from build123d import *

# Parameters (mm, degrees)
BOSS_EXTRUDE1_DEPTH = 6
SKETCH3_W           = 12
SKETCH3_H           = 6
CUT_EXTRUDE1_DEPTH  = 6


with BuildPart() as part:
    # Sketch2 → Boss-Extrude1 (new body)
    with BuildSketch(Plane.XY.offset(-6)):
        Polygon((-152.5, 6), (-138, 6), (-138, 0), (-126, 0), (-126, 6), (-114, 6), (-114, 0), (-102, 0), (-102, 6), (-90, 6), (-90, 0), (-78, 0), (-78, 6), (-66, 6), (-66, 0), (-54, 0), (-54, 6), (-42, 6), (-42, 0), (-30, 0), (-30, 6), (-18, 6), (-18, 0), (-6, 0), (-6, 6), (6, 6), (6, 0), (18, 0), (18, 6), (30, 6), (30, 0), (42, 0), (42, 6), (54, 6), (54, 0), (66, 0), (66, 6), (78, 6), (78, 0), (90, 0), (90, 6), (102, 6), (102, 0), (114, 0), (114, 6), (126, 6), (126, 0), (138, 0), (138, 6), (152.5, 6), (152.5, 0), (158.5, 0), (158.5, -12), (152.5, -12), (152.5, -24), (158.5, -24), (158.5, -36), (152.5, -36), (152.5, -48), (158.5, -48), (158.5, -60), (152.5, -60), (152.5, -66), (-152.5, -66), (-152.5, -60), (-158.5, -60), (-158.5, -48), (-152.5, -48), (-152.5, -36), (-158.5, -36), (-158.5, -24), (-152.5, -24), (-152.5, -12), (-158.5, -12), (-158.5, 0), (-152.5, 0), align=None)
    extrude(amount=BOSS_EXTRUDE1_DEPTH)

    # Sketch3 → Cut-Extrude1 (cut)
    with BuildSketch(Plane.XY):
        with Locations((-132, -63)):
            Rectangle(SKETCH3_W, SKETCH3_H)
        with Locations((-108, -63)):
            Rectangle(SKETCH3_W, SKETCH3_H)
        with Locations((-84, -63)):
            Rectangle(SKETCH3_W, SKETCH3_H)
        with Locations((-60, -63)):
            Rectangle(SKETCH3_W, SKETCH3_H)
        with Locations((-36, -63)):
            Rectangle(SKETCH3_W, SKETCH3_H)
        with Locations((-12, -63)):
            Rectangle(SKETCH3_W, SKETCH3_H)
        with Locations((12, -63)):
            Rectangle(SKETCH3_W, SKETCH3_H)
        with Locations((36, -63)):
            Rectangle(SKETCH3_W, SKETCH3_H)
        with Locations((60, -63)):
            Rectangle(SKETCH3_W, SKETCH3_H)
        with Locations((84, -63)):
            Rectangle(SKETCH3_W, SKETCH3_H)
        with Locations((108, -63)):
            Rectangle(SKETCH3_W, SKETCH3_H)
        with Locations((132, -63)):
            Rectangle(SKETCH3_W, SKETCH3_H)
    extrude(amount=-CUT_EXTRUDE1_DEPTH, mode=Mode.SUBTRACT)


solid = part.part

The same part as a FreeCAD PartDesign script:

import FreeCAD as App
import Part
import Sketcher
from FreeCAD import Vector

doc = App.newDocument("Part")
body = doc.addObject("PartDesign::Body", "Body")

sketch1 = doc.addObject("Sketcher::SketchObject", "Sketch")
body.addObject(sketch1)
sketch1.AttachmentSupport = (doc.XY_Plane, [""])
sketch1.MapMode = "FlatFace"
sketch1.AttachmentOffset = App.Placement(Vector(0, 0, -6), App.Rotation())
sketch1.addGeometry([
    Part.LineSegment(Vector(-138, 6, 0), Vector(-152, 6, 0)),
    Part.LineSegment(Vector(-152, 6, 0), Vector(-152, 0, 0)),
    Part.LineSegment(Vector(-152, 0, 0), Vector(-158, 0, 0)),
    Part.LineSegment(Vector(-158, 0, 0), Vector(-158, -12, 0)),
    Part.LineSegment(Vector(-158, -12, 0), Vector(-152, -12, 0)),
    Part.LineSegment(Vector(-152, -12, 0), Vector(-152, -24, 0)),
    Part.LineSegment(Vector(-152, -24, 0), Vector(-158, -24, 0)),
    Part.LineSegment(Vector(-158, -24, 0), Vector(-158, -36, 0)),
    Part.LineSegment(Vector(-158, -36, 0), Vector(-152, -36, 0)),
    Part.LineSegment(Vector(-152, -36, 0), Vector(-152, -48, 0)),
    Part.LineSegment(Vector(-152, -48, 0), Vector(-158, -48, 0)),
    Part.LineSegment(Vector(-158, -48, 0), Vector(-158, -60, 0)),
    Part.LineSegment(Vector(-158, -60, 0), Vector(-152, -60, 0)),
    Part.LineSegment(Vector(-152, -60, 0), Vector(-152, -66, 0)),
    Part.LineSegment(Vector(-152, -66, 0), Vector(152, -66, 0)),
    Part.LineSegment(Vector(152, -66, 0), Vector(152, -60, 0)),
    Part.LineSegment(Vector(152, -60, 0), Vector(158, -60, 0)),
    Part.LineSegment(Vector(158, -60, 0), Vector(158, -48, 0)),
    Part.LineSegment(Vector(158, -48, 0), Vector(152, -48, 0)),
    Part.LineSegment(Vector(152, -48, 0), Vector(152, -36, 0)),
    Part.LineSegment(Vector(152, -36, 0), Vector(158, -36, 0)),
    Part.LineSegment(Vector(158, -36, 0), Vector(158, -24, 0)),
    Part.LineSegment(Vector(158, -24, 0), Vector(152, -24, 0)),
    Part.LineSegment(Vector(152, -24, 0), Vector(152, -12, 0)),
    Part.LineSegment(Vector(152, -12, 0), Vector(158, -12, 0)),
    Part.LineSegment(Vector(158, -12, 0), Vector(158, 0, 0)),
    Part.LineSegment(Vector(158, 0, 0), Vector(152, 0, 0)),
    Part.LineSegment(Vector(152, 0, 0), Vector(152, 6, 0)),
    Part.LineSegment(Vector(152, 6, 0), Vector(138, 6, 0)),
    Part.LineSegment(Vector(138, 6, 0), Vector(138, 0, 0)),
    Part.LineSegment(Vector(138, 0, 0), Vector(126, 0, 0)),
    Part.LineSegment(Vector(126, 0, 0), Vector(126, 6, 0)),
    Part.LineSegment(Vector(126, 6, 0), Vector(114, 6, 0)),
    Part.LineSegment(Vector(114, 6, 0), Vector(114, 0, 0)),
    Part.LineSegment(Vector(114, 0, 0), Vector(102, 0, 0)),
    Part.LineSegment(Vector(102, 0, 0), Vector(102, 6, 0)),
    Part.LineSegment(Vector(102, 6, 0), Vector(90, 6, 0)),
    Part.LineSegment(Vector(90, 6, 0), Vector(90, 0, 0)),
    Part.LineSegment(Vector(90, 0, 0), Vector(78, 0, 0)),
    Part.LineSegment(Vector(78, 0, 0), Vector(78, 6, 0)),
    Part.LineSegment(Vector(78, 6, 0), Vector(66, 6, 0)),
    Part.LineSegment(Vector(66, 6, 0), Vector(66, 0, 0)),
    Part.LineSegment(Vector(66, 0, 0), Vector(54, 0, 0)),
    Part.LineSegment(Vector(54, 0, 0), Vector(54, 6, 0)),
    Part.LineSegment(Vector(54, 6, 0), Vector(42, 6, 0)),
    Part.LineSegment(Vector(42, 6, 0), Vector(42, 0, 0)),
    Part.LineSegment(Vector(42, 0, 0), Vector(30, 0, 0)),
    Part.LineSegment(Vector(30, 0, 0), Vector(30, 6, 0)),
    Part.LineSegment(Vector(30, 6, 0), Vector(18, 6, 0)),
    Part.LineSegment(Vector(18, 6, 0), Vector(18, 0, 0)),
    Part.LineSegment(Vector(18, 0, 0), Vector(6, 0, 0)),
    Part.LineSegment(Vector(6, 0, 0), Vector(6, 6, 0)),
    Part.LineSegment(Vector(6, 6, 0), Vector(-6, 6, 0)),
    Part.LineSegment(Vector(-6, 6, 0), Vector(-6, 0, 0)),
    Part.LineSegment(Vector(-6, 0, 0), Vector(-18, 0, 0)),
    Part.LineSegment(Vector(-18, 0, 0), Vector(-18, 6, 0)),
    Part.LineSegment(Vector(-18, 6, 0), Vector(-30, 6, 0)),
    Part.LineSegment(Vector(-30, 6, 0), Vector(-30, 0, 0)),
    Part.LineSegment(Vector(-30, 0, 0), Vector(-42, 0, 0)),
    Part.LineSegment(Vector(-42, 0, 0), Vector(-42, 6, 0)),
    Part.LineSegment(Vector(-42, 6, 0), Vector(-54, 6, 0)),
    Part.LineSegment(Vector(-54, 6, 0), Vector(-54, 0, 0)),
    Part.LineSegment(Vector(-54, 0, 0), Vector(-66, 0, 0)),
    Part.LineSegment(Vector(-66, 0, 0), Vector(-66, 6, 0)),
    Part.LineSegment(Vector(-66, 6, 0), Vector(-78, 6, 0)),
    Part.LineSegment(Vector(-78, 6, 0), Vector(-78, 0, 0)),
    Part.LineSegment(Vector(-78, 0, 0), Vector(-90, 0, 0)),
    Part.LineSegment(Vector(-90, 0, 0), Vector(-90, 6, 0)),
    Part.LineSegment(Vector(-90, 6, 0), Vector(-102, 6, 0)),
    Part.LineSegment(Vector(-102, 6, 0), Vector(-102, 0, 0)),
    Part.LineSegment(Vector(-102, 0, 0), Vector(-114, 0, 0)),
    Part.LineSegment(Vector(-114, 0, 0), Vector(-114, 6, 0)),
    Part.LineSegment(Vector(-114, 6, 0), Vector(-126, 6, 0)),
    Part.LineSegment(Vector(-126, 6, 0), Vector(-126, 0, 0)),
    Part.LineSegment(Vector(-126, 0, 0), Vector(-138, 0, 0)),
    Part.LineSegment(Vector(-138, 0, 0), Vector(-138, 6, 0)),
], False)
sketch1.addConstraint([
    Sketcher.Constraint("Coincident", 0, 2, 1, 1),
    Sketcher.Constraint("Coincident", 1, 2, 2, 1),
    Sketcher.Constraint("Coincident", 2, 2, 3, 1),
    Sketcher.Constraint("Coincident", 3, 2, 4, 1),
    Sketcher.Constraint("Coincident", 4, 2, 5, 1),
    Sketcher.Constraint("Coincident", 5, 2, 6, 1),
    Sketcher.Constraint("Coincident", 6, 2, 7, 1),
    Sketcher.Constraint("Coincident", 7, 2, 8, 1),
    Sketcher.Constraint("Coincident", 8, 2, 9, 1),
    Sketcher.Constraint("Coincident", 9, 2, 10, 1),
    Sketcher.Constraint("Coincident", 10, 2, 11, 1),
    Sketcher.Constraint("Coincident", 11, 2, 12, 1),
    Sketcher.Constraint("Coincident", 12, 2, 13, 1),
    Sketcher.Constraint("Coincident", 13, 2, 14, 1),
    Sketcher.Constraint("Coincident", 14, 2, 15, 1),
    Sketcher.Constraint("Coincident", 15, 2, 16, 1),
    Sketcher.Constraint("Coincident", 16, 2, 17, 1),
    Sketcher.Constraint("Coincident", 17, 2, 18, 1),
    Sketcher.Constraint("Coincident", 18, 2, 19, 1),
    Sketcher.Constraint("Coincident", 19, 2, 20, 1),
    Sketcher.Constraint("Coincident", 20, 2, 21, 1),
    Sketcher.Constraint("Coincident", 21, 2, 22, 1),
    Sketcher.Constraint("Coincident", 22, 2, 23, 1),
    Sketcher.Constraint("Coincident", 23, 2, 24, 1),
    Sketcher.Constraint("Coincident", 24, 2, 25, 1),
    Sketcher.Constraint("Coincident", 25, 2, 26, 1),
    Sketcher.Constraint("Coincident", 26, 2, 27, 1),
    Sketcher.Constraint("Coincident", 27, 2, 28, 1),
    Sketcher.Constraint("Coincident", 28, 2, 29, 1),
    Sketcher.Constraint("Coincident", 29, 2, 30, 1),
    Sketcher.Constraint("Coincident", 30, 2, 31, 1),
    Sketcher.Constraint("Coincident", 31, 2, 32, 1),
    Sketcher.Constraint("Coincident", 32, 2, 33, 1),
    Sketcher.Constraint("Coincident", 33, 2, 34, 1),
    Sketcher.Constraint("Coincident", 34, 2, 35, 1),
    Sketcher.Constraint("Coincident", 35, 2, 36, 1),
    Sketcher.Constraint("Coincident", 36, 2, 37, 1),
    Sketcher.Constraint("Coincident", 37, 2, 38, 1),
    Sketcher.Constraint("Coincident", 38, 2, 39, 1),
    Sketcher.Constraint("Coincident", 39, 2, 40, 1),
    Sketcher.Constraint("Coincident", 40, 2, 41, 1),
    Sketcher.Constraint("Coincident", 41, 2, 42, 1),
    Sketcher.Constraint("Coincident", 42, 2, 43, 1),
    Sketcher.Constraint("Coincident", 43, 2, 44, 1),
    Sketcher.Constraint("Coincident", 44, 2, 45, 1),
    Sketcher.Constraint("Coincident", 45, 2, 46, 1),
    Sketcher.Constraint("Coincident", 46, 2, 47, 1),
    Sketcher.Constraint("Coincident", 47, 2, 48, 1),
    Sketcher.Constraint("Coincident", 48, 2, 49, 1),
    Sketcher.Constraint("Coincident", 49, 2, 50, 1),
    Sketcher.Constraint("Coincident", 50, 2, 51, 1),
    Sketcher.Constraint("Coincident", 51, 2, 52, 1),
    Sketcher.Constraint("Coincident", 52, 2, 53, 1),
    Sketcher.Constraint("Coincident", 53, 2, 54, 1),
    Sketcher.Constraint("Coincident", 54, 2, 55, 1),
    Sketcher.Constraint("Coincident", 55, 2, 56, 1),
    Sketcher.Constraint("Coincident", 56, 2, 57, 1),
    Sketcher.Constraint("Coincident", 57, 2, 58, 1),
    Sketcher.Constraint("Coincident", 58, 2, 59, 1),
    Sketcher.Constraint("Coincident", 59, 2, 60, 1),
    Sketcher.Constraint("Coincident", 60, 2, 61, 1),
    Sketcher.Constraint("Coincident", 61, 2, 62, 1),
    Sketcher.Constraint("Coincident", 62, 2, 63, 1),
    Sketcher.Constraint("Coincident", 63, 2, 64, 1),
    Sketcher.Constraint("Coincident", 64, 2, 65, 1),
    Sketcher.Constraint("Coincident", 65, 2, 66, 1),
    Sketcher.Constraint("Coincident", 66, 2, 67, 1),
    Sketcher.Constraint("Coincident", 67, 2, 68, 1),
    Sketcher.Constraint("Coincident", 68, 2, 69, 1),
    Sketcher.Constraint("Coincident", 69, 2, 70, 1),
    Sketcher.Constraint("Coincident", 70, 2, 71, 1),
    Sketcher.Constraint("Coincident", 71, 2, 72, 1),
    Sketcher.Constraint("Coincident", 72, 2, 73, 1),
    Sketcher.Constraint("Coincident", 73, 2, 74, 1),
    Sketcher.Constraint("Coincident", 74, 2, 75, 1),
    Sketcher.Constraint("Coincident", 75, 2, 0, 1),
    Sketcher.Constraint("Horizontal", 0),
    Sketcher.Constraint("Vertical", 1),
    Sketcher.Constraint("Horizontal", 2),
    Sketcher.Constraint("Vertical", 3),
    Sketcher.Constraint("Horizontal", 4),
    Sketcher.Constraint("Vertical", 5),
    Sketcher.Constraint("Horizontal", 6),
    Sketcher.Constraint("Vertical", 7),
    Sketcher.Constraint("Horizontal", 8),
    Sketcher.Constraint("Vertical", 9),
    Sketcher.Constraint("Horizontal", 10),
    Sketcher.Constraint("Vertical", 11),
    Sketcher.Constraint("Horizontal", 12),
    Sketcher.Constraint("Vertical", 13),
    Sketcher.Constraint("Horizontal", 14),
    Sketcher.Constraint("Vertical", 15),
    Sketcher.Constraint("Horizontal", 16),
    Sketcher.Constraint("Vertical", 17),
    Sketcher.Constraint("Horizontal", 18),
    Sketcher.Constraint("Vertical", 19),
    Sketcher.Constraint("Horizontal", 20),
    Sketcher.Constraint("Vertical", 21),
    Sketcher.Constraint("Horizontal", 22),
    Sketcher.Constraint("Vertical", 23),
    Sketcher.Constraint("Horizontal", 24),
    Sketcher.Constraint("Vertical", 25),
    Sketcher.Constraint("Horizontal", 26),
    Sketcher.Constraint("Vertical", 27),
    Sketcher.Constraint("Horizontal", 28),
    Sketcher.Constraint("Vertical", 29),
    Sketcher.Constraint("Horizontal", 30),
    Sketcher.Constraint("Vertical", 31),
    Sketcher.Constraint("Horizontal", 32),
    Sketcher.Constraint("Vertical", 33),
    Sketcher.Constraint("Horizontal", 34),
    Sketcher.Constraint("Vertical", 35),
    Sketcher.Constraint("Horizontal", 36),
    Sketcher.Constraint("Vertical", 37),
    Sketcher.Constraint("Horizontal", 38),
    Sketcher.Constraint("Vertical", 39),
    Sketcher.Constraint("Horizontal", 40),
    Sketcher.Constraint("Vertical", 41),
    Sketcher.Constraint("Horizontal", 42),
    Sketcher.Constraint("Vertical", 43),
    Sketcher.Constraint("Horizontal", 44),
    Sketcher.Constraint("Vertical", 45),
    Sketcher.Constraint("Horizontal", 46),
    Sketcher.Constraint("Vertical", 47),
    Sketcher.Constraint("Horizontal", 48),
    Sketcher.Constraint("Vertical", 49),
    Sketcher.Constraint("Horizontal", 50),
    Sketcher.Constraint("Vertical", 51),
    Sketcher.Constraint("Horizontal", 52),
    Sketcher.Constraint("Vertical", 53),
    Sketcher.Constraint("Horizontal", 54),
    Sketcher.Constraint("Vertical", 55),
    Sketcher.Constraint("Horizontal", 56),
    Sketcher.Constraint("Vertical", 57),
    Sketcher.Constraint("Horizontal", 58),
    Sketcher.Constraint("Vertical", 59),
    Sketcher.Constraint("Horizontal", 60),
    Sketcher.Constraint("Vertical", 61),
    Sketcher.Constraint("Horizontal", 62),
    Sketcher.Constraint("Vertical", 63),
    Sketcher.Constraint("Horizontal", 64),
    Sketcher.Constraint("Vertical", 65),
    Sketcher.Constraint("Horizontal", 66),
    Sketcher.Constraint("Vertical", 67),
    Sketcher.Constraint("Horizontal", 68),
    Sketcher.Constraint("Vertical", 69),
    Sketcher.Constraint("Horizontal", 70),
    Sketcher.Constraint("Vertical", 71),
    Sketcher.Constraint("Horizontal", 72),
    Sketcher.Constraint("Vertical", 73),
    Sketcher.Constraint("Horizontal", 74),
    Sketcher.Constraint("Vertical", 75),
    Sketcher.Constraint("Symmetric", 2, 2, 25, 2, -1, 1),
    Sketcher.Constraint("Symmetric", 50, 2, 53, 2, -1, 1),
    Sketcher.Constraint("Symmetric", 46, 2, 57, 2, -1, 1),
    Sketcher.Constraint("Symmetric", 42, 2, 61, 2, -1, 1),
    Sketcher.Constraint("Symmetric", 38, 2, 65, 2, -1, 1),
    Sketcher.Constraint("Symmetric", 34, 2, 69, 2, -1, 1),
    Sketcher.Constraint("Symmetric", 30, 2, 73, 2, -1, 1),
    Sketcher.Constraint("Symmetric", 12, 2, 15, 2, -2),
    Sketcher.Constraint("Symmetric", 10, 2, 17, 2, -2),
    Sketcher.Constraint("Symmetric", 8, 2, 19, 2, -2),
    Sketcher.Constraint("Symmetric", 6, 2, 21, 2, -2),
    Sketcher.Constraint("Symmetric", 4, 2, 23, 2, -2),
    Sketcher.Constraint("Symmetric", 1, 2, 26, 2, -2),
    Sketcher.Constraint("Symmetric", 49, 2, 54, 2, -2),
    Sketcher.Constraint("Symmetric", 45, 2, 58, 2, -2),
    Sketcher.Constraint("Symmetric", 41, 2, 62, 2, -2),
    Sketcher.Constraint("Symmetric", 37, 2, 66, 2, -2),
    Sketcher.Constraint("Symmetric", 33, 2, 70, 2, -2),
    Sketcher.Constraint("Symmetric", 29, 2, 74, 2, -2),
    Sketcher.Constraint("Horizontal", 0, 2, 27, 2),
    Sketcher.Constraint("Horizontal", 28, 2, 31, 2),
    Sketcher.Constraint("Horizontal", 32, 2, 35, 2),
    Sketcher.Constraint("Horizontal", 36, 2, 39, 2),
    Sketcher.Constraint("Horizontal", 40, 2, 43, 2),
    Sketcher.Constraint("Horizontal", 44, 2, 47, 2),
    Sketcher.Constraint("Horizontal", 48, 2, 51, 2),
    Sketcher.Constraint("Horizontal", 52, 2, 55, 2),
    Sketcher.Constraint("Horizontal", 56, 2, 59, 2),
    Sketcher.Constraint("Horizontal", 60, 2, 63, 2),
    Sketcher.Constraint("Horizontal", 64, 2, 67, 2),
    Sketcher.Constraint("Horizontal", 68, 2, 71, 2),
    Sketcher.Constraint("Vertical", 1, 2, 4, 2),
    Sketcher.Constraint("Vertical", 3, 2, 6, 2),
    Sketcher.Constraint("Vertical", 5, 2, 8, 2),
    Sketcher.Constraint("Vertical", 7, 2, 10, 2),
    Sketcher.Constraint("Vertical", 9, 2, 12, 2),
    Sketcher.Constraint("Equal", 30, 32),
    Sketcher.Constraint("Equal", 32, 34),
    Sketcher.Constraint("Equal", 34, 36),
    Sketcher.Constraint("Equal", 36, 38),
    Sketcher.Constraint("Equal", 38, 40),
    Sketcher.Constraint("Equal", 40, 42),
    Sketcher.Constraint("Equal", 42, 44),
    Sketcher.Constraint("Equal", 44, 46),
    Sketcher.Constraint("Equal", 46, 48),
    Sketcher.Constraint("Equal", 48, 50),
    Sketcher.Constraint("Equal", 50, 52),
    Sketcher.Constraint("Equal", 26, 1),
    Sketcher.Constraint("Equal", 74, 3),
    Sketcher.Constraint("Equal", 3, 5),
    Sketcher.Constraint("Equal", 5, 7),
    Sketcher.Constraint("Equal", 7, 9),
    Sketcher.Constraint("Equal", 9, 11),
    Sketcher.Constraint("Equal", 1, 13),
    Sketcher.Constraint("DistanceX", 2, 2, 2, 1, 6.0),
    Sketcher.Constraint("DistanceX", 14, 1, 14, 2, 305.0),
    Sketcher.Constraint("DistanceX", 30, 2, 30, 1, 12.0),
])
pad1 = doc.addObject("PartDesign::Pad", "Pad")
body.addObject(pad1)
pad1.Profile = sketch1
pad1.Length = 6

sketch2 = doc.addObject("Sketcher::SketchObject", "Sketch001")
body.addObject(sketch2)
sketch2.AttachmentSupport = (doc.XY_Plane, [""])
sketch2.MapMode = "FlatFace"
sketch2.addGeometry([
    Part.LineSegment(Vector(-138, -60, 0), Vector(-138, -66, 0)),
    Part.LineSegment(Vector(-138, -66, 0), Vector(-126, -66, 0)),
    Part.LineSegment(Vector(-126, -66, 0), Vector(-126, -60, 0)),
    Part.LineSegment(Vector(-126, -60, 0), Vector(-138, -60, 0)),
    Part.LineSegment(Vector(-114, -60, 0), Vector(-114, -66, 0)),
    Part.LineSegment(Vector(-114, -66, 0), Vector(-102, -66, 0)),
    Part.LineSegment(Vector(-102, -66, 0), Vector(-102, -60, 0)),
    Part.LineSegment(Vector(-102, -60, 0), Vector(-114, -60, 0)),
    Part.LineSegment(Vector(-90, -60, 0), Vector(-90, -66, 0)),
    Part.LineSegment(Vector(-90, -66, 0), Vector(-78, -66, 0)),
    Part.LineSegment(Vector(-78, -66, 0), Vector(-78, -60, 0)),
    Part.LineSegment(Vector(-78, -60, 0), Vector(-90, -60, 0)),
    Part.LineSegment(Vector(-66, -60, 0), Vector(-66, -66, 0)),
    Part.LineSegment(Vector(-66, -66, 0), Vector(-54, -66, 0)),
    Part.LineSegment(Vector(-54, -66, 0), Vector(-54, -60, 0)),
    Part.LineSegment(Vector(-54, -60, 0), Vector(-66, -60, 0)),
    Part.LineSegment(Vector(-42, -60, 0), Vector(-42, -66, 0)),
    Part.LineSegment(Vector(-42, -66, 0), Vector(-30, -66, 0)),
    Part.LineSegment(Vector(-30, -66, 0), Vector(-30, -60, 0)),
    Part.LineSegment(Vector(-30, -60, 0), Vector(-42, -60, 0)),
    Part.LineSegment(Vector(-18, -60, 0), Vector(-18, -66, 0)),
    Part.LineSegment(Vector(-18, -66, 0), Vector(-6, -66, 0)),
    Part.LineSegment(Vector(-6, -66, 0), Vector(-6, -60, 0)),
    Part.LineSegment(Vector(-6, -60, 0), Vector(-18, -60, 0)),
    Part.LineSegment(Vector(6, -60, 0), Vector(6, -66, 0)),
    Part.LineSegment(Vector(6, -66, 0), Vector(18, -66, 0)),
    Part.LineSegment(Vector(18, -66, 0), Vector(18, -60, 0)),
    Part.LineSegment(Vector(18, -60, 0), Vector(6, -60, 0)),
    Part.LineSegment(Vector(30, -60, 0), Vector(30, -66, 0)),
    Part.LineSegment(Vector(30, -66, 0), Vector(42, -66, 0)),
    Part.LineSegment(Vector(42, -66, 0), Vector(42, -60, 0)),
    Part.LineSegment(Vector(42, -60, 0), Vector(30, -60, 0)),
    Part.LineSegment(Vector(54, -60, 0), Vector(54, -66, 0)),
    Part.LineSegment(Vector(54, -66, 0), Vector(66, -66, 0)),
    Part.LineSegment(Vector(66, -66, 0), Vector(66, -60, 0)),
    Part.LineSegment(Vector(66, -60, 0), Vector(54, -60, 0)),
    Part.LineSegment(Vector(78, -60, 0), Vector(78, -66, 0)),
    Part.LineSegment(Vector(78, -66, 0), Vector(90, -66, 0)),
    Part.LineSegment(Vector(90, -66, 0), Vector(90, -60, 0)),
    Part.LineSegment(Vector(90, -60, 0), Vector(78, -60, 0)),
    Part.LineSegment(Vector(102, -60, 0), Vector(102, -66, 0)),
    Part.LineSegment(Vector(102, -66, 0), Vector(114, -66, 0)),
    Part.LineSegment(Vector(114, -66, 0), Vector(114, -60, 0)),
    Part.LineSegment(Vector(114, -60, 0), Vector(102, -60, 0)),
    Part.LineSegment(Vector(126, -60, 0), Vector(126, -66, 0)),
    Part.LineSegment(Vector(126, -66, 0), Vector(138, -66, 0)),
    Part.LineSegment(Vector(138, -66, 0), Vector(138, -60, 0)),
    Part.LineSegment(Vector(138, -60, 0), Vector(126, -60, 0)),
], False)
sketch2.addConstraint([
    Sketcher.Constraint("Coincident", 0, 2, 1, 1),
    Sketcher.Constraint("Coincident", 1, 2, 2, 1),
    Sketcher.Constraint("Coincident", 2, 2, 3, 1),
    Sketcher.Constraint("Coincident", 3, 2, 0, 1),
    Sketcher.Constraint("Coincident", 4, 2, 5, 1),
    Sketcher.Constraint("Coincident", 5, 2, 6, 1),
    Sketcher.Constraint("Coincident", 6, 2, 7, 1),
    Sketcher.Constraint("Coincident", 7, 2, 4, 1),
    Sketcher.Constraint("Coincident", 8, 2, 9, 1),
    Sketcher.Constraint("Coincident", 9, 2, 10, 1),
    Sketcher.Constraint("Coincident", 10, 2, 11, 1),
    Sketcher.Constraint("Coincident", 11, 2, 8, 1),
    Sketcher.Constraint("Coincident", 12, 2, 13, 1),
    Sketcher.Constraint("Coincident", 13, 2, 14, 1),
    Sketcher.Constraint("Coincident", 14, 2, 15, 1),
    Sketcher.Constraint("Coincident", 15, 2, 12, 1),
    Sketcher.Constraint("Coincident", 16, 2, 17, 1),
    Sketcher.Constraint("Coincident", 17, 2, 18, 1),
    Sketcher.Constraint("Coincident", 18, 2, 19, 1),
    Sketcher.Constraint("Coincident", 19, 2, 16, 1),
    Sketcher.Constraint("Coincident", 20, 2, 21, 1),
    Sketcher.Constraint("Coincident", 21, 2, 22, 1),
    Sketcher.Constraint("Coincident", 22, 2, 23, 1),
    Sketcher.Constraint("Coincident", 23, 2, 20, 1),
    Sketcher.Constraint("Coincident", 24, 2, 25, 1),
    Sketcher.Constraint("Coincident", 25, 2, 26, 1),
    Sketcher.Constraint("Coincident", 26, 2, 27, 1),
    Sketcher.Constraint("Coincident", 27, 2, 24, 1),
    Sketcher.Constraint("Coincident", 28, 2, 29, 1),
    Sketcher.Constraint("Coincident", 29, 2, 30, 1),
    Sketcher.Constraint("Coincident", 30, 2, 31, 1),
    Sketcher.Constraint("Coincident", 31, 2, 28, 1),
    Sketcher.Constraint("Coincident", 32, 2, 33, 1),
    Sketcher.Constraint("Coincident", 33, 2, 34, 1),
    Sketcher.Constraint("Coincident", 34, 2, 35, 1),
    Sketcher.Constraint("Coincident", 35, 2, 32, 1),
    Sketcher.Constraint("Coincident", 36, 2, 37, 1),
    Sketcher.Constraint("Coincident", 37, 2, 38, 1),
    Sketcher.Constraint("Coincident", 38, 2, 39, 1),
    Sketcher.Constraint("Coincident", 39, 2, 36, 1),
    Sketcher.Constraint("Coincident", 40, 2, 41, 1),
    Sketcher.Constraint("Coincident", 41, 2, 42, 1),
    Sketcher.Constraint("Coincident", 42, 2, 43, 1),
    Sketcher.Constraint("Coincident", 43, 2, 40, 1),
    Sketcher.Constraint("Coincident", 44, 2, 45, 1),
    Sketcher.Constraint("Coincident", 45, 2, 46, 1),
    Sketcher.Constraint("Coincident", 46, 2, 47, 1),
    Sketcher.Constraint("Coincident", 47, 2, 44, 1),
    Sketcher.Constraint("Vertical", 0),
    Sketcher.Constraint("Horizontal", 1),
    Sketcher.Constraint("Vertical", 2),
    Sketcher.Constraint("Horizontal", 3),
    Sketcher.Constraint("Vertical", 4),
    Sketcher.Constraint("Horizontal", 5),
    Sketcher.Constraint("Vertical", 6),
    Sketcher.Constraint("Horizontal", 7),
    Sketcher.Constraint("Vertical", 8),
    Sketcher.Constraint("Horizontal", 9),
    Sketcher.Constraint("Vertical", 10),
    Sketcher.Constraint("Horizontal", 11),
    Sketcher.Constraint("Vertical", 12),
    Sketcher.Constraint("Horizontal", 13),
    Sketcher.Constraint("Vertical", 14),
    Sketcher.Constraint("Horizontal", 15),
    Sketcher.Constraint("Vertical", 16),
    Sketcher.Constraint("Horizontal", 17),
    Sketcher.Constraint("Vertical", 18),
    Sketcher.Constraint("Horizontal", 19),
    Sketcher.Constraint("Vertical", 20),
    Sketcher.Constraint("Horizontal", 21),
    Sketcher.Constraint("Vertical", 22),
    Sketcher.Constraint("Horizontal", 23),
    Sketcher.Constraint("Vertical", 24),
    Sketcher.Constraint("Horizontal", 25),
    Sketcher.Constraint("Vertical", 26),
    Sketcher.Constraint("Horizontal", 27),
    Sketcher.Constraint("Vertical", 28),
    Sketcher.Constraint("Horizontal", 29),
    Sketcher.Constraint("Vertical", 30),
    Sketcher.Constraint("Horizontal", 31),
    Sketcher.Constraint("Vertical", 32),
    Sketcher.Constraint("Horizontal", 33),
    Sketcher.Constraint("Vertical", 34),
    Sketcher.Constraint("Horizontal", 35),
    Sketcher.Constraint("Vertical", 36),
    Sketcher.Constraint("Horizontal", 37),
    Sketcher.Constraint("Vertical", 38),
    Sketcher.Constraint("Horizontal", 39),
    Sketcher.Constraint("Vertical", 40),
    Sketcher.Constraint("Horizontal", 41),
    Sketcher.Constraint("Vertical", 42),
    Sketcher.Constraint("Horizontal", 43),
    Sketcher.Constraint("Vertical", 44),
    Sketcher.Constraint("Horizontal", 45),
    Sketcher.Constraint("Vertical", 46),
    Sketcher.Constraint("Horizontal", 47),
    Sketcher.Constraint("Symmetric", 21, 2, 24, 2, -2),
    Sketcher.Constraint("Symmetric", 23, 2, 26, 2, -2),
    Sketcher.Constraint("Symmetric", 17, 2, 28, 2, -2),
    Sketcher.Constraint("Symmetric", 19, 2, 30, 2, -2),
    Sketcher.Constraint("Symmetric", 13, 2, 32, 2, -2),
    Sketcher.Constraint("Symmetric", 15, 2, 34, 2, -2),
    Sketcher.Constraint("Symmetric", 9, 2, 36, 2, -2),
    Sketcher.Constraint("Symmetric", 11, 2, 38, 2, -2),
    Sketcher.Constraint("Symmetric", 5, 2, 40, 2, -2),
    Sketcher.Constraint("Symmetric", 7, 2, 42, 2, -2),
    Sketcher.Constraint("Symmetric", 1, 2, 44, 2, -2),
    Sketcher.Constraint("Symmetric", 3, 2, 46, 2, -2),
    Sketcher.Constraint("Horizontal", 1, 2, 4, 2),
    Sketcher.Constraint("Horizontal", 3, 2, 6, 2),
    Sketcher.Constraint("Horizontal", 5, 2, 8, 2),
    Sketcher.Constraint("Horizontal", 7, 2, 10, 2),
    Sketcher.Constraint("Horizontal", 9, 2, 12, 2),
    Sketcher.Constraint("Horizontal", 11, 2, 14, 2),
    Sketcher.Constraint("Horizontal", 13, 2, 16, 2),
    Sketcher.Constraint("Horizontal", 15, 2, 18, 2),
    Sketcher.Constraint("Horizontal", 17, 2, 20, 2),
    Sketcher.Constraint("Horizontal", 19, 2, 22, 2),
    Sketcher.Constraint("Equal", 3, 5),
    Sketcher.Constraint("Equal", 7, 9),
    Sketcher.Constraint("Equal", 11, 13),
    Sketcher.Constraint("Equal", 15, 17),
    Sketcher.Constraint("Equal", 19, 21),
    Sketcher.Constraint("DistanceX", 1, 1, 1, 2, 12.0),
    Sketcher.Constraint("DistanceY", 0, 2, 0, 1, 6.0),
    Sketcher.Constraint("DistanceX", 0, 2, -1, 1, 138.0),
    Sketcher.Constraint("DistanceY", 0, 2, -1, 1, 66.0),
    Sketcher.Constraint("DistanceX", 4, 2, -1, 1, 114.0),
    Sketcher.Constraint("DistanceX", 8, 2, -1, 1, 90.0),
    Sketcher.Constraint("DistanceX", 12, 2, -1, 1, 66.0),
    Sketcher.Constraint("DistanceX", 16, 2, -1, 1, 42.0),
    Sketcher.Constraint("DistanceX", 20, 2, -1, 1, 18.0),
])
pocket1 = doc.addObject("PartDesign::Pocket", "Pocket")
body.addObject(pocket1)
pocket1.Profile = sketch2
pocket1.Length = 6

doc.recompute()
